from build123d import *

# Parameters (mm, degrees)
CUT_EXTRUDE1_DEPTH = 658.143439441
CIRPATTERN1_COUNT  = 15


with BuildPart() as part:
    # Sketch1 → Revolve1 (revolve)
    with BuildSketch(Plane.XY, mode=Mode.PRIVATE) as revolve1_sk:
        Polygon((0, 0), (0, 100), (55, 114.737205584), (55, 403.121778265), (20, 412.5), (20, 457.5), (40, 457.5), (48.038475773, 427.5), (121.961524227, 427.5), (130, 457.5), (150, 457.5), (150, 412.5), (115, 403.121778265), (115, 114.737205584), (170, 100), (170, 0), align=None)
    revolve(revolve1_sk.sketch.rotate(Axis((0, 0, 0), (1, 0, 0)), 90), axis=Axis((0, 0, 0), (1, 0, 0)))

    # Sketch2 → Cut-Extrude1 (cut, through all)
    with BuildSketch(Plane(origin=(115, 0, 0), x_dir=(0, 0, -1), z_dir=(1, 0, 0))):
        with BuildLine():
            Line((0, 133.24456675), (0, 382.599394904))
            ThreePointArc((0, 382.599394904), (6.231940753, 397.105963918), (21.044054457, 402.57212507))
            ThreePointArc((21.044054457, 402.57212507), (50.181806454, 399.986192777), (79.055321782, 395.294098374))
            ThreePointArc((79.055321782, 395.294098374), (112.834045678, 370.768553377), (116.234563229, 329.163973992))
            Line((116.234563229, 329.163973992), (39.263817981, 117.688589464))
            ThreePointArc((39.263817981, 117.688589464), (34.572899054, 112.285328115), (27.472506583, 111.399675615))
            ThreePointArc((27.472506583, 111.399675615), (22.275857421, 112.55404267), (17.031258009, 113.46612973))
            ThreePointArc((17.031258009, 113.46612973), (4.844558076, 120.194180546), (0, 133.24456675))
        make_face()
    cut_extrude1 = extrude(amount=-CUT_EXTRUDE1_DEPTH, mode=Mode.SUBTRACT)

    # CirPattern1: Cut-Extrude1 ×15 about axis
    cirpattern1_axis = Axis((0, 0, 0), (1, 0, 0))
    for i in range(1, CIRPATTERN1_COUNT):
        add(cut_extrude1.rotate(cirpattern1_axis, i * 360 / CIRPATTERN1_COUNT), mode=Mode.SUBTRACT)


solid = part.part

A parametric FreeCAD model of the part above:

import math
import FreeCAD as App
import Part
import Sketcher
from FreeCAD import Vector
Q = App.Units.Quantity

doc = App.newDocument("Part")
body = doc.addObject("PartDesign::Body", "Body")

sketch1 = body.newObject("Sketcher::SketchObject", "Sketch")
sketch1.AttachmentSupport = (doc.getObject("XY_Plane"), [""])
sketch1.MapMode = "FlatFace"
sketch1.addGeometry([
    Part.LineSegment(Vector(0, 100, 0), Vector(0, 0, 0)),
    Part.LineSegment(Vector(0, 0, 0), Vector(170, 0, 0)),
    Part.LineSegment(Vector(170, 0, 0), Vector(170, 100, 0)),
    Part.LineSegment(Vector(170, 100, 0), Vector(115, 114.737206, 0)),
    Part.LineSegment(Vector(115, 114.737206, 0), Vector(115, 403.121778, 0)),
    Part.LineSegment(Vector(115, 403.121778, 0), Vector(150, 412.5, 0)),
    Part.LineSegment(Vector(150, 412.5, 0), Vector(150, 457.5, 0)),
    Part.LineSegment(Vector(150, 457.5, 0), Vector(130, 457.5, 0)),
    Part.LineSegment(Vector(130, 457.5, 0), Vector(121.961524, 427.5, 0)),
    Part.LineSegment(Vector(121.961524, 427.5, 0), Vector(48.038476, 427.5, 0)),
    Part.LineSegment(Vector(48.038476, 427.5, 0), Vector(40, 457.5, 0)),
    Part.LineSegment(Vector(40, 457.5, 0), Vector(20, 457.5, 0)),
    Part.LineSegment(Vector(20, 457.5, 0), Vector(20, 412.5, 0)),
    Part.LineSegment(Vector(20, 412.5, 0), Vector(55, 403.121778, 0)),
    Part.LineSegment(Vector(55, 403.121778, 0), Vector(55, 114.737206, 0)),
    Part.LineSegment(Vector(55, 114.737206, 0), Vector(0, 100, 0)),
], False)
sketch1.addConstraint([
    Sketcher.Constraint("Coincident", 0, 2, 1, 1),
    Sketcher.Constraint("Coincident", 1, 2, 2, 1),
    Sketcher.Constraint("Coincident", 2, 2, 3, 1),
    Sketcher.Constraint("Coincident", 3, 2, 4, 1),
    Sketcher.Constraint("Coincident", 4, 2, 5, 1),
    Sketcher.Constraint("Coincident", 5, 2, 6, 1),
    Sketcher.Constraint("Coincident", 6, 2, 7, 1),
    Sketcher.Constraint("Coincident", 7, 2, 8, 1),
    Sketcher.Constraint("Coincident", 8, 2, 9, 1),
    Sketcher.Constraint("Coincident", 9, 2, 10, 1),
    Sketcher.Constraint("Coincident", 10, 2, 11, 1),
    Sketcher.Constraint("Coincident", 11, 2, 12, 1),
    Sketcher.Constraint("Coincident", 12, 2, 13, 1),
    Sketcher.Constraint("Coincident", 13, 2, 14, 1),
    Sketcher.Constraint("Coincident", 14, 2, 15, 1),
    Sketcher.Constraint("Coincident", 15, 2, 0, 1),
    Sketcher.Constraint("Vertical", 0),
    Sketcher.Constraint("Horizontal", 1),
    Sketcher.Constraint("Vertical", 2),
    Sketcher.Constraint("Vertical", 4),
    Sketcher.Constraint("Vertical", 6),
    Sketcher.Constraint("Horizontal", 7),
    Sketcher.Constraint("Horizontal", 9),
    Sketcher.Constraint("Horizontal", 11),
    Sketcher.Constraint("Vertical", 12),
    Sketcher.Constraint("Vertical", 14),
    Sketcher.Constraint("Coincident", 0, 2, -1, 1),
    Sketcher.Constraint("Perpendicular", 3, 8),
    Sketcher.Constraint("Perpendicular", 5, 10),
    Sketcher.Constraint("Perpendicular", 8, 13),
    Sketcher.Constraint("Perpendicular", 10, 15),
    Sketcher.Constraint("Horizontal", 7, 2, 10, 2),
    Sketcher.Constraint("Horizontal", 5, 2, 12, 2),
    Sketcher.Constraint("Horizontal", 4, 2, 13, 2),
    Sketcher.Constraint("Horizontal", 3, 2, 14, 2),
    Sketcher.Constraint("Horizontal", 2, 2, 15, 2),
    Sketcher.Constraint("Equal", 7, 11),
    Sketcher.Constraint("Equal", 8, 10),
    Sketcher.Constraint("DistanceX", 1, 1, 1, 2, Q("170 mm")),
    Sketcher.Constraint("DistanceX", 7, 2, 7, 1, Q("20 mm")),
    Sketcher.Constraint("DistanceY", 0, 2, 0, 1, Q("100 mm")),
    Sketcher.Constraint("DistanceY", 6, 1, 6, 2, Q("45 mm")),
    Sketcher.Constraint("Angle", 3, Q("165 deg")),
    Sketcher.Constraint("DistanceX", -1, 1, 3, 2, Q("115 mm")),
    Sketcher.Constraint("DistanceX", -1, 1, 5, 2, Q("150 mm")),
    Sketcher.Constraint("DistanceY", 8, 2, 7, 2, Q("30 mm")),
    Sketcher.Constraint("DistanceY", -1, 1, 5, 2, Q("412.5 mm")),
])
revolution = body.newObject("PartDesign::Revolution", "Revolution")
revolution.Profile = sketch1
revolution.ReferenceAxis = (sketch1, ["H_Axis"])
revolution.Angle = 360

sketch2 = body.newObject("Sketcher::SketchObject", "Sketch001")
sketch2.AttachmentSupport = (doc.getObject("YZ_Plane"), [""])
sketch2.MapMode = "FlatFace"
sketch2.AttachmentOffset = App.Placement(Vector(0, 0, 115), App.Rotation())
sketch2.addGeometry([
    Part.LineSegment(Vector(382.599395, 0, 0), Vector(133.244567, 0, 0)),
    Part.ArcOfCircle(Part.Circle(Vector(133.244567, -20, 0), Vector(0, 0, 1), 20), math.radians(90), math.radians(171.463635)),
    Part.ArcOfCircle(Part.Circle(Vector(0, 0, 0), Vector(0, 0, 1), 114.737205), math.radians(-13.853404), math.radians(-8.536365)),
    Part.ArcOfCircle(Part.Circle(Vector(121.108791, -29.866892, 0), Vector(0, 0, 1), 10), math.radians(166.146596), math.radians(250)),
    Part.LineSegment(Vector(117.688589, -39.263818, 0), Vector(329.163974, -116.234563, 0)),
    Part.ArcOfCircle(Part.Circle(Vector(346.264981, -69.249932, 0), Vector(0, 0, 1), 50), math.radians(-110), math.radians(-11.309445)),
    Part.ArcOfCircle(Part.Circle(Vector(0, 0, 0), Vector(0, 0, 1), 403.121778), math.radians(-11.309445), math.radians(-2.992356)),
    Part.ArcOfCircle(Part.Circle(Vector(382.599395, -20, 0), Vector(0, 0, 1), 20), math.radians(-2.992356), math.radians(90)),
], False)
sketch2.addConstraint([
    Sketcher.Constraint("Tangent", 0, 2, 1, 1),
    Sketcher.Constraint("Tangent", 1, 2, 2, 2),
    Sketcher.Constraint("Tangent", 2, 1, 3, 1),
    Sketcher.Constraint("Tangent", 3, 2, 4, 1),
    Sketcher.Constraint("Tangent", 4, 2, 5, 1),
    Sketcher.Constraint("Tangent", 5, 2, 6, 1),
    Sketcher.Constraint("Tangent", 6, 2, 7, 1),
    Sketcher.Constraint("Tangent", 7, 2, 0, 1),
    Sketcher.Constraint("Horizontal", 0),
    Sketcher.Constraint("Coincident", 2, 3, -1, 1),
    Sketcher.Constraint("Coincident", 6, 3, -1, 1),
    Sketcher.Constraint("Equal", 1, 7),
    Sketcher.Constraint("PointOnObject", 0, 2, -1),
    Sketcher.Constraint("Radius", 1, Q("20 mm")),
    Sketcher.Constraint("Radius", 3, Q("10 mm")),
    Sketcher.Constraint("Radius", 5, Q("50 mm")),
    Sketcher.Constraint("Angle", 4, Q("-20 deg")),
    Sketcher.Constraint("Radius", 6, Q("403.121778 mm")),
    Sketcher.Constraint("Radius", 2, Q("114.737205 mm")),
    Sketcher.Constraint("DistanceX", -1, 1, 5, 2, Q("395.294098 mm")),
])
pocket1 = body.newObject("PartDesign::Pocket", "Pocket")
pocket1.Profile = sketch2
pocket1.Type = "ThroughAll"
doc.recompute()

polarpattern = body.newObject("PartDesign::PolarPattern", "PolarPattern")
polarpattern.Originals = [pocket1]
polarpattern.Axis = (doc.getObject("X_Axis"), [""])
polarpattern.Angle = 360
polarpattern.Occurrences = 15
body.Tip = polarpattern

doc.recompute()
